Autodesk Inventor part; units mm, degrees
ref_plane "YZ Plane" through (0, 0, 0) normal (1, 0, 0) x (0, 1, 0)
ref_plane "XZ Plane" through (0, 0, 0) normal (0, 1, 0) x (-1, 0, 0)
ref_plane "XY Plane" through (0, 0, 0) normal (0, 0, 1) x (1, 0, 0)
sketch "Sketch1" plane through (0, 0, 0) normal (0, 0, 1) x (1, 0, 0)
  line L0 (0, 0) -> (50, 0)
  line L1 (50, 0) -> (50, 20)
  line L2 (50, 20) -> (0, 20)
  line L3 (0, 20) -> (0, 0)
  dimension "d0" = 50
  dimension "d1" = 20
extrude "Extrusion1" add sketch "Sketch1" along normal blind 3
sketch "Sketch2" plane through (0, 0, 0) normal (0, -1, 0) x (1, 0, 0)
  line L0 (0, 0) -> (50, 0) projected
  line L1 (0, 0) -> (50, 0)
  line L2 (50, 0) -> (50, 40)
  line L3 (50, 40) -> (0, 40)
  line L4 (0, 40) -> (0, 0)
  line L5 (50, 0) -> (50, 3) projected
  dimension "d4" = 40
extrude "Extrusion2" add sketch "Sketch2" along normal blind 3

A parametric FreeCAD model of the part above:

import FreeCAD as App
import Part
import Sketcher
Q = App.Units.Quantity


def add_polygon(sketch, points):
    """Adds a closed chain of lines whose ends are joined by coincident constraints."""
    first, n = sketch.GeometryCount, len(points)
    for a, b in zip(points, points[1:] + points[:1]):
        sketch.addGeometry(Part.LineSegment(App.Vector(*a, 0), App.Vector(*b, 0)), False)
    for i in range(n):
        sketch.addConstraint(Sketcher.Constraint("Coincident", first + i, 2, first + (i + 1) % n, 1))

doc = App.newDocument("Part")
body = doc.addObject("PartDesign::Body", "Body")

# Sketch on XY plane
sketch1 = doc.addObject("Sketcher::SketchObject", "Sketch")
body.addObject(sketch1)
sketch1.AttachmentSupport = (doc.XY_Plane, [""])
sketch1.MapMode = "FlatFace"
add_polygon(sketch1, [(0, 20), (0, 0), (50, 0), (50, 20)])  # lines 0-3
sketch1.addConstraint(Sketcher.Constraint("Vertical", 0))
sketch1.addConstraint(Sketcher.Constraint("Horizontal", 1))
sketch1.addConstraint(Sketcher.Constraint("Vertical", 2))
sketch1.addConstraint(Sketcher.Constraint("Horizontal", 3))
sketch1.addConstraint(Sketcher.Constraint("Coincident", 0, 2, -1, 1))
sketch1.addConstraint(Sketcher.Constraint("DistanceX", 1, 1, 1, 2, Q("50 mm")))
sketch1.addConstraint(Sketcher.Constraint("DistanceY", 0, 2, 0, 1, Q("20 mm")))
pad1 = doc.addObject("PartDesign::Pad", "Pad")
body.addObject(pad1)
pad1.Profile = sketch1
pad1.Length = 3

# Sketch on XZ plane
sketch2 = doc.addObject("Sketcher::SketchObject", "Sketch001")
body.addObject(sketch2)
sketch2.AttachmentSupport = (doc.XZ_Plane, [""])
sketch2.MapMode = "FlatFace"
add_polygon(sketch2, [(0, 40), (0, 0), (50, 0), (50, 40)])  # lines 0-3
sketch2.addConstraint(Sketcher.Constraint("Vertical", 0))
sketch2.addConstraint(Sketcher.Constraint("Horizontal", 1))
sketch2.addConstraint(Sketcher.Constraint("Vertical", 2))
sketch2.addConstraint(Sketcher.Constraint("Horizontal", 3))
sketch2.addConstraint(Sketcher.Constraint("Coincident", 0, 2, -1, 1))
sketch2.addConstraint(Sketcher.Constraint("DistanceY", 0, 2, 0, 1, Q("40 mm")))
sketch2.addConstraint(Sketcher.Constraint("DistanceX", 1, 1, 1, 2, Q("50 mm")))
pad2 = doc.addObject("PartDesign::Pad", "Pad001")
body.addObject(pad2)
pad2.Profile = sketch2
pad2.Length = 3

doc.recompute()
